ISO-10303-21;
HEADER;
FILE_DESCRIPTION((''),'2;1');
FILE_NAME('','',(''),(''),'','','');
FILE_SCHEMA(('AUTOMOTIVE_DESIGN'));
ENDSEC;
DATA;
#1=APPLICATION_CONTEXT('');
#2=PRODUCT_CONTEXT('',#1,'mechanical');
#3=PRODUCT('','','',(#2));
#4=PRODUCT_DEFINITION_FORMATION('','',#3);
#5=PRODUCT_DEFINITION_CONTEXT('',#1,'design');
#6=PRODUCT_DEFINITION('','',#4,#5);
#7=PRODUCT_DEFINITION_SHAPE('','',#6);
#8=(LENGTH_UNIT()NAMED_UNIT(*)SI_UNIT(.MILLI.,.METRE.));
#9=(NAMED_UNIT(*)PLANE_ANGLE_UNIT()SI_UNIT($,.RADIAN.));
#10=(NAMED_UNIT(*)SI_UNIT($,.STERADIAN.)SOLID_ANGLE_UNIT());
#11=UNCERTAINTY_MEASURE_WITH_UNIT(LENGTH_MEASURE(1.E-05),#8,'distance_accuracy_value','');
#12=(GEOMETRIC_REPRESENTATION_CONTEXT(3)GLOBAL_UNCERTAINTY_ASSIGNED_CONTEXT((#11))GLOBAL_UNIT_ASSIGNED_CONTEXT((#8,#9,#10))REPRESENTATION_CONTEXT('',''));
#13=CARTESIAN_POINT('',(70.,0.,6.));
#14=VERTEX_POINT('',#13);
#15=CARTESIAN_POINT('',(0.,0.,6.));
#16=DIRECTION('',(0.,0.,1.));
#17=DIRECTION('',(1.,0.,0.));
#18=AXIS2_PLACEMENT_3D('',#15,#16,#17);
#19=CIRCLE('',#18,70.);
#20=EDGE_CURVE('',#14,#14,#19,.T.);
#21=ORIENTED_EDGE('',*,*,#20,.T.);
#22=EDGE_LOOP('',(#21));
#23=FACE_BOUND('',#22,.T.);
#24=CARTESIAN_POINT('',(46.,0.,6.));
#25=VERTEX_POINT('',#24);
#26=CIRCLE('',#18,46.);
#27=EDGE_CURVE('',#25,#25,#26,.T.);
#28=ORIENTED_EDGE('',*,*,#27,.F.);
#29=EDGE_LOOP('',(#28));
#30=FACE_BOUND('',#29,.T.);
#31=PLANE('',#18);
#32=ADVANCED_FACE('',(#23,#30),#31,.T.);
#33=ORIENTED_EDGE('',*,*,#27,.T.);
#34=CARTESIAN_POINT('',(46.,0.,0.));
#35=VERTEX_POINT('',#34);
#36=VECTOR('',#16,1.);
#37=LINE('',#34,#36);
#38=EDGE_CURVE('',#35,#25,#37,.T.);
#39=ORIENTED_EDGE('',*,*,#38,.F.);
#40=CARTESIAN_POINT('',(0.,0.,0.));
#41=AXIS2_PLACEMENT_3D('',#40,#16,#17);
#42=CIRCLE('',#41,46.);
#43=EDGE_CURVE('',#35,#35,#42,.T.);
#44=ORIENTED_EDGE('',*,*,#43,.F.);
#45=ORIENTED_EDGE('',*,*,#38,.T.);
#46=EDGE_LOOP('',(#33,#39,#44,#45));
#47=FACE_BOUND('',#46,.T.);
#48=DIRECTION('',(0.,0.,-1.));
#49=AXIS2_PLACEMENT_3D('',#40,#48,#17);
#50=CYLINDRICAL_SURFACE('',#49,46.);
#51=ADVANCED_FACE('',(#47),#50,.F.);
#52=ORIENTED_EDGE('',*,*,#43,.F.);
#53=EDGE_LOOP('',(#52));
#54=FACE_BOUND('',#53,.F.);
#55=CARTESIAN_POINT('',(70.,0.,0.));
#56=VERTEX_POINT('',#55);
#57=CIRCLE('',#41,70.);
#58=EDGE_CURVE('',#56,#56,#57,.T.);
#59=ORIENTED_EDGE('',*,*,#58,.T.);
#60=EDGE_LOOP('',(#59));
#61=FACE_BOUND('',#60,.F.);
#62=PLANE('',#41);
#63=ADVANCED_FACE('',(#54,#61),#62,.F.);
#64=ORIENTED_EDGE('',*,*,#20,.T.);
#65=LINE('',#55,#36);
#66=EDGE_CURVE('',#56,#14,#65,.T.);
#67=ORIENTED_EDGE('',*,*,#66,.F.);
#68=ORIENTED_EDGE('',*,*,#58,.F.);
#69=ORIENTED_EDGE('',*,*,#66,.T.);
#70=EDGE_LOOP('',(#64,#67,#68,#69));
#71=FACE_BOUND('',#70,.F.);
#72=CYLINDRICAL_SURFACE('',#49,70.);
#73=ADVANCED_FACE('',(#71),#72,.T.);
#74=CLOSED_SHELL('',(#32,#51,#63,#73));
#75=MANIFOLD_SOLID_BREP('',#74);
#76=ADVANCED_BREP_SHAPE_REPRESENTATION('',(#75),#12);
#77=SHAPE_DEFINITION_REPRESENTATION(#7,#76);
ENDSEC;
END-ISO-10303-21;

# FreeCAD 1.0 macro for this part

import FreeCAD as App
import Part
import Sketcher
from FreeCAD import Vector

doc = App.newDocument("Part")
body = doc.addObject("PartDesign::Body", "Body")

# Sketch on XY plane
sketch1 = body.newObject("Sketcher::SketchObject", "Sketch")
sketch1.AttachmentSupport = (doc.getObject("XY_Plane"), [""])
sketch1.MapMode = "FlatFace"
sketch1.addGeometry(Part.Circle(Vector(0, 0, 0), Vector(0, 0, 1), 70), False)
sketch1.addGeometry(Part.Circle(Vector(0, 0, 0), Vector(0, 0, 1), 46), False)
sketch1.addConstraint(Sketcher.Constraint("Coincident", 0, 3, -1, 1))
sketch1.addConstraint(Sketcher.Constraint("Coincident", 1, 3, -1, 1))
sketch1.addConstraint(Sketcher.Constraint("Diameter", 0, 140.0))
sketch1.addConstraint(Sketcher.Constraint("Diameter", 1, 92.0))
pad1 = body.newObject("PartDesign::Pad", "Pad")
pad1.Profile = sketch1
pad1.Length = 6

doc.recompute()
